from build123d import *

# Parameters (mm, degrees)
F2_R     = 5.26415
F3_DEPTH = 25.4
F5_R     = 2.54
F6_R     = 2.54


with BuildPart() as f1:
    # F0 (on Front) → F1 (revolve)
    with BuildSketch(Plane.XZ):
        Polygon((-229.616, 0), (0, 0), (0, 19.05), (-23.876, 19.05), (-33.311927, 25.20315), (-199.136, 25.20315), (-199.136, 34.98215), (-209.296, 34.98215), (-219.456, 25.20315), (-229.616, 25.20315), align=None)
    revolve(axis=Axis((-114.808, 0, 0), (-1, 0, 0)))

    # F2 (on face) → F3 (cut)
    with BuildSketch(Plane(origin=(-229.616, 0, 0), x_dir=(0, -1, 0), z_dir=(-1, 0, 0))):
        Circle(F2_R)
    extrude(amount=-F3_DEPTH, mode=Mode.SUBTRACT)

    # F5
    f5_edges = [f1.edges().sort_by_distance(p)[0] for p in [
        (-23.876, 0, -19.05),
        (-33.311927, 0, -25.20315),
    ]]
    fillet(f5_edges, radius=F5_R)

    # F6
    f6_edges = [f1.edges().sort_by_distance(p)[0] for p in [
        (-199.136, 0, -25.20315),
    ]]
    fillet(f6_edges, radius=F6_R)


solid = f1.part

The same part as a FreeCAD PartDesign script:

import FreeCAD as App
import Part
import Sketcher
from FreeCAD import Vector
Q = App.Units.Quantity


def edges_at(feature, points):
    """Names of the edges that pass closest to the given points."""
    edges = feature.Shape.Edges
    near = lambda p: min(range(len(edges)), key=lambda i: edges[i].distToShape(Part.Vertex(*p))[0])
    return sorted({f"Edge{near(p) + 1}" for p in points})


def add_polygon(sketch, points):
    """Adds a closed chain of lines whose ends are joined by coincident constraints."""
    first, n = sketch.GeometryCount, len(points)
    for a, b in zip(points, points[1:] + points[:1]):
        sketch.addGeometry(Part.LineSegment(App.Vector(*a, 0), App.Vector(*b, 0)), False)
    for i in range(n):
        sketch.addConstraint(Sketcher.Constraint("Coincident", first + i, 2, first + (i + 1) % n, 1))

doc = App.newDocument("Part")
params = doc.addObject("Spreadsheet::Sheet", "Params")
for row, (alias, value) in enumerate([
    ("sketch1_width", "0.4 in"),
    ("sketch1_width2", "9.04 in"),
    ("sketch1_width3", "0.94 in"),
    ("sketch1_height", "0.75 in"),
    ("sketch1_height2", "0.385 in"),
    ("revolution_angle", "360 deg"),
    ("pocket1_length", "1 in"),
    ("fillet_radius", "0.1 in"),
    ("fillet2_radius", "0.1 in"),
], start=1):
    params.set(f"A{row}", alias)
    params.set(f"B{row}", "=" + value)
    params.setAlias(f"B{row}", alias)

body = doc.addObject("PartDesign::Body", "Body")

sketch1 = body.newObject("Sketcher::SketchObject", "Sketch")
sketch1.AttachmentSupport = (doc.getObject("XZ_Plane"), [""])
sketch1.MapMode = "FlatFace"
add_polygon(sketch1, [(-230, 0), (0, 0), (0, 19), (-24, 19), (-33, 25), (-199, 25), (-199, 35), (-209, 35), (-219, 25), (-230, 25)])
sketch1.addConstraint(Sketcher.Constraint("Horizontal", 0))
sketch1.addConstraint(Sketcher.Constraint("Vertical", 1))
sketch1.addConstraint(Sketcher.Constraint("Horizontal", 2))
sketch1.addConstraint(Sketcher.Constraint("Horizontal", 4))
sketch1.addConstraint(Sketcher.Constraint("Vertical", 5))
sketch1.addConstraint(Sketcher.Constraint("Horizontal", 6))
sketch1.addConstraint(Sketcher.Constraint("Horizontal", 8))
sketch1.addConstraint(Sketcher.Constraint("Vertical", 9))
sketch1.addConstraint(Sketcher.Constraint("Coincident", 0, 2, -1, 1))
sketch1.addConstraint(Sketcher.Constraint("Horizontal", 4, 2, 7, 2))
sketch1.addConstraint(Sketcher.Constraint("Equal", 6, 8))
sketch1.addConstraint(Sketcher.Constraint("DistanceX", 6, 2, 6, 1, Q("0.4 in")))
sketch1.addConstraint(Sketcher.Constraint("DistanceX", 0, 1, 0, 2, Q("9.04 in")))
sketch1.addConstraint(Sketcher.Constraint("DistanceX", 2, 2, 2, 1, Q("0.94 in")))
sketch1.addConstraint(Sketcher.Constraint("DistanceY", 1, 1, 1, 2, Q("0.75 in")))
sketch1.addConstraint(Sketcher.Constraint("DistanceX", 4, 2, 2, 2, Q("6.9 in")))
sketch1.addConstraint(Sketcher.Constraint("DistanceY", 5, 1, 5, 2, Q("0.385 in")))
sketch1.addConstraint(Sketcher.Constraint("Distance", 3, Q("0.4435 in")))
sketch1.addConstraint(Sketcher.Constraint("DistanceY", 9, 2, 9, 1, Q("25.20315 mm")))
sketch1.setExpression("Constraints[21]", "Params.sketch1_width")
sketch1.setExpression("Constraints[22]", "Params.sketch1_width2")
sketch1.setExpression("Constraints[23]", "Params.sketch1_width3")
sketch1.setExpression("Constraints[24]", "Params.sketch1_height")
sketch1.setExpression("Constraints[26]", "Params.sketch1_height2")
revolution = body.newObject("PartDesign::Revolution", "Revolution")
revolution.Profile = sketch1
revolution.ReferenceAxis = (sketch1, ["H_Axis"])
revolution.setExpression("Angle", "Params.revolution_angle")

sketch2 = body.newObject("Sketcher::SketchObject", "Sketch001")
sketch2.AttachmentSupport = (doc.getObject("YZ_Plane"), [""])
sketch2.MapMode = "FlatFace"
sketch2.AttachmentOffset = App.Placement(Vector(0, 0, -9.04 * 25.4), App.Rotation())
sketch2.addGeometry(Part.Circle(Vector(0, 0, 0), Vector(0, 0, 1), 5), False)
sketch2.addConstraint(Sketcher.Constraint("Coincident", 0, 3, -1, 1))
sketch2.addConstraint(Sketcher.Constraint("Diameter", 0, Q("0.4145 in")))
pocket1 = body.newObject("PartDesign::Pocket", "Pocket")
pocket1.Profile = sketch2
pocket1.setExpression("Length", "Params.pocket1_length")
pocket1.Reversed = True
doc.recompute()

fillet = body.newObject("PartDesign::Fillet", "Fillet")
fillet.Base = (pocket1, edges_at(pocket1, [(-23.876, 0, -19.05), (-33.312, 0, -25.203)]))
fillet.setExpression("Radius", "Params.fillet_radius")
doc.recompute()

fillet2 = body.newObject("PartDesign::Fillet", "Fillet001")
fillet2.Base = (fillet, edges_at(fillet, [(-199.136, 0, -25.203)]))
fillet2.setExpression("Radius", "Params.fillet2_radius")

doc.recompute()
